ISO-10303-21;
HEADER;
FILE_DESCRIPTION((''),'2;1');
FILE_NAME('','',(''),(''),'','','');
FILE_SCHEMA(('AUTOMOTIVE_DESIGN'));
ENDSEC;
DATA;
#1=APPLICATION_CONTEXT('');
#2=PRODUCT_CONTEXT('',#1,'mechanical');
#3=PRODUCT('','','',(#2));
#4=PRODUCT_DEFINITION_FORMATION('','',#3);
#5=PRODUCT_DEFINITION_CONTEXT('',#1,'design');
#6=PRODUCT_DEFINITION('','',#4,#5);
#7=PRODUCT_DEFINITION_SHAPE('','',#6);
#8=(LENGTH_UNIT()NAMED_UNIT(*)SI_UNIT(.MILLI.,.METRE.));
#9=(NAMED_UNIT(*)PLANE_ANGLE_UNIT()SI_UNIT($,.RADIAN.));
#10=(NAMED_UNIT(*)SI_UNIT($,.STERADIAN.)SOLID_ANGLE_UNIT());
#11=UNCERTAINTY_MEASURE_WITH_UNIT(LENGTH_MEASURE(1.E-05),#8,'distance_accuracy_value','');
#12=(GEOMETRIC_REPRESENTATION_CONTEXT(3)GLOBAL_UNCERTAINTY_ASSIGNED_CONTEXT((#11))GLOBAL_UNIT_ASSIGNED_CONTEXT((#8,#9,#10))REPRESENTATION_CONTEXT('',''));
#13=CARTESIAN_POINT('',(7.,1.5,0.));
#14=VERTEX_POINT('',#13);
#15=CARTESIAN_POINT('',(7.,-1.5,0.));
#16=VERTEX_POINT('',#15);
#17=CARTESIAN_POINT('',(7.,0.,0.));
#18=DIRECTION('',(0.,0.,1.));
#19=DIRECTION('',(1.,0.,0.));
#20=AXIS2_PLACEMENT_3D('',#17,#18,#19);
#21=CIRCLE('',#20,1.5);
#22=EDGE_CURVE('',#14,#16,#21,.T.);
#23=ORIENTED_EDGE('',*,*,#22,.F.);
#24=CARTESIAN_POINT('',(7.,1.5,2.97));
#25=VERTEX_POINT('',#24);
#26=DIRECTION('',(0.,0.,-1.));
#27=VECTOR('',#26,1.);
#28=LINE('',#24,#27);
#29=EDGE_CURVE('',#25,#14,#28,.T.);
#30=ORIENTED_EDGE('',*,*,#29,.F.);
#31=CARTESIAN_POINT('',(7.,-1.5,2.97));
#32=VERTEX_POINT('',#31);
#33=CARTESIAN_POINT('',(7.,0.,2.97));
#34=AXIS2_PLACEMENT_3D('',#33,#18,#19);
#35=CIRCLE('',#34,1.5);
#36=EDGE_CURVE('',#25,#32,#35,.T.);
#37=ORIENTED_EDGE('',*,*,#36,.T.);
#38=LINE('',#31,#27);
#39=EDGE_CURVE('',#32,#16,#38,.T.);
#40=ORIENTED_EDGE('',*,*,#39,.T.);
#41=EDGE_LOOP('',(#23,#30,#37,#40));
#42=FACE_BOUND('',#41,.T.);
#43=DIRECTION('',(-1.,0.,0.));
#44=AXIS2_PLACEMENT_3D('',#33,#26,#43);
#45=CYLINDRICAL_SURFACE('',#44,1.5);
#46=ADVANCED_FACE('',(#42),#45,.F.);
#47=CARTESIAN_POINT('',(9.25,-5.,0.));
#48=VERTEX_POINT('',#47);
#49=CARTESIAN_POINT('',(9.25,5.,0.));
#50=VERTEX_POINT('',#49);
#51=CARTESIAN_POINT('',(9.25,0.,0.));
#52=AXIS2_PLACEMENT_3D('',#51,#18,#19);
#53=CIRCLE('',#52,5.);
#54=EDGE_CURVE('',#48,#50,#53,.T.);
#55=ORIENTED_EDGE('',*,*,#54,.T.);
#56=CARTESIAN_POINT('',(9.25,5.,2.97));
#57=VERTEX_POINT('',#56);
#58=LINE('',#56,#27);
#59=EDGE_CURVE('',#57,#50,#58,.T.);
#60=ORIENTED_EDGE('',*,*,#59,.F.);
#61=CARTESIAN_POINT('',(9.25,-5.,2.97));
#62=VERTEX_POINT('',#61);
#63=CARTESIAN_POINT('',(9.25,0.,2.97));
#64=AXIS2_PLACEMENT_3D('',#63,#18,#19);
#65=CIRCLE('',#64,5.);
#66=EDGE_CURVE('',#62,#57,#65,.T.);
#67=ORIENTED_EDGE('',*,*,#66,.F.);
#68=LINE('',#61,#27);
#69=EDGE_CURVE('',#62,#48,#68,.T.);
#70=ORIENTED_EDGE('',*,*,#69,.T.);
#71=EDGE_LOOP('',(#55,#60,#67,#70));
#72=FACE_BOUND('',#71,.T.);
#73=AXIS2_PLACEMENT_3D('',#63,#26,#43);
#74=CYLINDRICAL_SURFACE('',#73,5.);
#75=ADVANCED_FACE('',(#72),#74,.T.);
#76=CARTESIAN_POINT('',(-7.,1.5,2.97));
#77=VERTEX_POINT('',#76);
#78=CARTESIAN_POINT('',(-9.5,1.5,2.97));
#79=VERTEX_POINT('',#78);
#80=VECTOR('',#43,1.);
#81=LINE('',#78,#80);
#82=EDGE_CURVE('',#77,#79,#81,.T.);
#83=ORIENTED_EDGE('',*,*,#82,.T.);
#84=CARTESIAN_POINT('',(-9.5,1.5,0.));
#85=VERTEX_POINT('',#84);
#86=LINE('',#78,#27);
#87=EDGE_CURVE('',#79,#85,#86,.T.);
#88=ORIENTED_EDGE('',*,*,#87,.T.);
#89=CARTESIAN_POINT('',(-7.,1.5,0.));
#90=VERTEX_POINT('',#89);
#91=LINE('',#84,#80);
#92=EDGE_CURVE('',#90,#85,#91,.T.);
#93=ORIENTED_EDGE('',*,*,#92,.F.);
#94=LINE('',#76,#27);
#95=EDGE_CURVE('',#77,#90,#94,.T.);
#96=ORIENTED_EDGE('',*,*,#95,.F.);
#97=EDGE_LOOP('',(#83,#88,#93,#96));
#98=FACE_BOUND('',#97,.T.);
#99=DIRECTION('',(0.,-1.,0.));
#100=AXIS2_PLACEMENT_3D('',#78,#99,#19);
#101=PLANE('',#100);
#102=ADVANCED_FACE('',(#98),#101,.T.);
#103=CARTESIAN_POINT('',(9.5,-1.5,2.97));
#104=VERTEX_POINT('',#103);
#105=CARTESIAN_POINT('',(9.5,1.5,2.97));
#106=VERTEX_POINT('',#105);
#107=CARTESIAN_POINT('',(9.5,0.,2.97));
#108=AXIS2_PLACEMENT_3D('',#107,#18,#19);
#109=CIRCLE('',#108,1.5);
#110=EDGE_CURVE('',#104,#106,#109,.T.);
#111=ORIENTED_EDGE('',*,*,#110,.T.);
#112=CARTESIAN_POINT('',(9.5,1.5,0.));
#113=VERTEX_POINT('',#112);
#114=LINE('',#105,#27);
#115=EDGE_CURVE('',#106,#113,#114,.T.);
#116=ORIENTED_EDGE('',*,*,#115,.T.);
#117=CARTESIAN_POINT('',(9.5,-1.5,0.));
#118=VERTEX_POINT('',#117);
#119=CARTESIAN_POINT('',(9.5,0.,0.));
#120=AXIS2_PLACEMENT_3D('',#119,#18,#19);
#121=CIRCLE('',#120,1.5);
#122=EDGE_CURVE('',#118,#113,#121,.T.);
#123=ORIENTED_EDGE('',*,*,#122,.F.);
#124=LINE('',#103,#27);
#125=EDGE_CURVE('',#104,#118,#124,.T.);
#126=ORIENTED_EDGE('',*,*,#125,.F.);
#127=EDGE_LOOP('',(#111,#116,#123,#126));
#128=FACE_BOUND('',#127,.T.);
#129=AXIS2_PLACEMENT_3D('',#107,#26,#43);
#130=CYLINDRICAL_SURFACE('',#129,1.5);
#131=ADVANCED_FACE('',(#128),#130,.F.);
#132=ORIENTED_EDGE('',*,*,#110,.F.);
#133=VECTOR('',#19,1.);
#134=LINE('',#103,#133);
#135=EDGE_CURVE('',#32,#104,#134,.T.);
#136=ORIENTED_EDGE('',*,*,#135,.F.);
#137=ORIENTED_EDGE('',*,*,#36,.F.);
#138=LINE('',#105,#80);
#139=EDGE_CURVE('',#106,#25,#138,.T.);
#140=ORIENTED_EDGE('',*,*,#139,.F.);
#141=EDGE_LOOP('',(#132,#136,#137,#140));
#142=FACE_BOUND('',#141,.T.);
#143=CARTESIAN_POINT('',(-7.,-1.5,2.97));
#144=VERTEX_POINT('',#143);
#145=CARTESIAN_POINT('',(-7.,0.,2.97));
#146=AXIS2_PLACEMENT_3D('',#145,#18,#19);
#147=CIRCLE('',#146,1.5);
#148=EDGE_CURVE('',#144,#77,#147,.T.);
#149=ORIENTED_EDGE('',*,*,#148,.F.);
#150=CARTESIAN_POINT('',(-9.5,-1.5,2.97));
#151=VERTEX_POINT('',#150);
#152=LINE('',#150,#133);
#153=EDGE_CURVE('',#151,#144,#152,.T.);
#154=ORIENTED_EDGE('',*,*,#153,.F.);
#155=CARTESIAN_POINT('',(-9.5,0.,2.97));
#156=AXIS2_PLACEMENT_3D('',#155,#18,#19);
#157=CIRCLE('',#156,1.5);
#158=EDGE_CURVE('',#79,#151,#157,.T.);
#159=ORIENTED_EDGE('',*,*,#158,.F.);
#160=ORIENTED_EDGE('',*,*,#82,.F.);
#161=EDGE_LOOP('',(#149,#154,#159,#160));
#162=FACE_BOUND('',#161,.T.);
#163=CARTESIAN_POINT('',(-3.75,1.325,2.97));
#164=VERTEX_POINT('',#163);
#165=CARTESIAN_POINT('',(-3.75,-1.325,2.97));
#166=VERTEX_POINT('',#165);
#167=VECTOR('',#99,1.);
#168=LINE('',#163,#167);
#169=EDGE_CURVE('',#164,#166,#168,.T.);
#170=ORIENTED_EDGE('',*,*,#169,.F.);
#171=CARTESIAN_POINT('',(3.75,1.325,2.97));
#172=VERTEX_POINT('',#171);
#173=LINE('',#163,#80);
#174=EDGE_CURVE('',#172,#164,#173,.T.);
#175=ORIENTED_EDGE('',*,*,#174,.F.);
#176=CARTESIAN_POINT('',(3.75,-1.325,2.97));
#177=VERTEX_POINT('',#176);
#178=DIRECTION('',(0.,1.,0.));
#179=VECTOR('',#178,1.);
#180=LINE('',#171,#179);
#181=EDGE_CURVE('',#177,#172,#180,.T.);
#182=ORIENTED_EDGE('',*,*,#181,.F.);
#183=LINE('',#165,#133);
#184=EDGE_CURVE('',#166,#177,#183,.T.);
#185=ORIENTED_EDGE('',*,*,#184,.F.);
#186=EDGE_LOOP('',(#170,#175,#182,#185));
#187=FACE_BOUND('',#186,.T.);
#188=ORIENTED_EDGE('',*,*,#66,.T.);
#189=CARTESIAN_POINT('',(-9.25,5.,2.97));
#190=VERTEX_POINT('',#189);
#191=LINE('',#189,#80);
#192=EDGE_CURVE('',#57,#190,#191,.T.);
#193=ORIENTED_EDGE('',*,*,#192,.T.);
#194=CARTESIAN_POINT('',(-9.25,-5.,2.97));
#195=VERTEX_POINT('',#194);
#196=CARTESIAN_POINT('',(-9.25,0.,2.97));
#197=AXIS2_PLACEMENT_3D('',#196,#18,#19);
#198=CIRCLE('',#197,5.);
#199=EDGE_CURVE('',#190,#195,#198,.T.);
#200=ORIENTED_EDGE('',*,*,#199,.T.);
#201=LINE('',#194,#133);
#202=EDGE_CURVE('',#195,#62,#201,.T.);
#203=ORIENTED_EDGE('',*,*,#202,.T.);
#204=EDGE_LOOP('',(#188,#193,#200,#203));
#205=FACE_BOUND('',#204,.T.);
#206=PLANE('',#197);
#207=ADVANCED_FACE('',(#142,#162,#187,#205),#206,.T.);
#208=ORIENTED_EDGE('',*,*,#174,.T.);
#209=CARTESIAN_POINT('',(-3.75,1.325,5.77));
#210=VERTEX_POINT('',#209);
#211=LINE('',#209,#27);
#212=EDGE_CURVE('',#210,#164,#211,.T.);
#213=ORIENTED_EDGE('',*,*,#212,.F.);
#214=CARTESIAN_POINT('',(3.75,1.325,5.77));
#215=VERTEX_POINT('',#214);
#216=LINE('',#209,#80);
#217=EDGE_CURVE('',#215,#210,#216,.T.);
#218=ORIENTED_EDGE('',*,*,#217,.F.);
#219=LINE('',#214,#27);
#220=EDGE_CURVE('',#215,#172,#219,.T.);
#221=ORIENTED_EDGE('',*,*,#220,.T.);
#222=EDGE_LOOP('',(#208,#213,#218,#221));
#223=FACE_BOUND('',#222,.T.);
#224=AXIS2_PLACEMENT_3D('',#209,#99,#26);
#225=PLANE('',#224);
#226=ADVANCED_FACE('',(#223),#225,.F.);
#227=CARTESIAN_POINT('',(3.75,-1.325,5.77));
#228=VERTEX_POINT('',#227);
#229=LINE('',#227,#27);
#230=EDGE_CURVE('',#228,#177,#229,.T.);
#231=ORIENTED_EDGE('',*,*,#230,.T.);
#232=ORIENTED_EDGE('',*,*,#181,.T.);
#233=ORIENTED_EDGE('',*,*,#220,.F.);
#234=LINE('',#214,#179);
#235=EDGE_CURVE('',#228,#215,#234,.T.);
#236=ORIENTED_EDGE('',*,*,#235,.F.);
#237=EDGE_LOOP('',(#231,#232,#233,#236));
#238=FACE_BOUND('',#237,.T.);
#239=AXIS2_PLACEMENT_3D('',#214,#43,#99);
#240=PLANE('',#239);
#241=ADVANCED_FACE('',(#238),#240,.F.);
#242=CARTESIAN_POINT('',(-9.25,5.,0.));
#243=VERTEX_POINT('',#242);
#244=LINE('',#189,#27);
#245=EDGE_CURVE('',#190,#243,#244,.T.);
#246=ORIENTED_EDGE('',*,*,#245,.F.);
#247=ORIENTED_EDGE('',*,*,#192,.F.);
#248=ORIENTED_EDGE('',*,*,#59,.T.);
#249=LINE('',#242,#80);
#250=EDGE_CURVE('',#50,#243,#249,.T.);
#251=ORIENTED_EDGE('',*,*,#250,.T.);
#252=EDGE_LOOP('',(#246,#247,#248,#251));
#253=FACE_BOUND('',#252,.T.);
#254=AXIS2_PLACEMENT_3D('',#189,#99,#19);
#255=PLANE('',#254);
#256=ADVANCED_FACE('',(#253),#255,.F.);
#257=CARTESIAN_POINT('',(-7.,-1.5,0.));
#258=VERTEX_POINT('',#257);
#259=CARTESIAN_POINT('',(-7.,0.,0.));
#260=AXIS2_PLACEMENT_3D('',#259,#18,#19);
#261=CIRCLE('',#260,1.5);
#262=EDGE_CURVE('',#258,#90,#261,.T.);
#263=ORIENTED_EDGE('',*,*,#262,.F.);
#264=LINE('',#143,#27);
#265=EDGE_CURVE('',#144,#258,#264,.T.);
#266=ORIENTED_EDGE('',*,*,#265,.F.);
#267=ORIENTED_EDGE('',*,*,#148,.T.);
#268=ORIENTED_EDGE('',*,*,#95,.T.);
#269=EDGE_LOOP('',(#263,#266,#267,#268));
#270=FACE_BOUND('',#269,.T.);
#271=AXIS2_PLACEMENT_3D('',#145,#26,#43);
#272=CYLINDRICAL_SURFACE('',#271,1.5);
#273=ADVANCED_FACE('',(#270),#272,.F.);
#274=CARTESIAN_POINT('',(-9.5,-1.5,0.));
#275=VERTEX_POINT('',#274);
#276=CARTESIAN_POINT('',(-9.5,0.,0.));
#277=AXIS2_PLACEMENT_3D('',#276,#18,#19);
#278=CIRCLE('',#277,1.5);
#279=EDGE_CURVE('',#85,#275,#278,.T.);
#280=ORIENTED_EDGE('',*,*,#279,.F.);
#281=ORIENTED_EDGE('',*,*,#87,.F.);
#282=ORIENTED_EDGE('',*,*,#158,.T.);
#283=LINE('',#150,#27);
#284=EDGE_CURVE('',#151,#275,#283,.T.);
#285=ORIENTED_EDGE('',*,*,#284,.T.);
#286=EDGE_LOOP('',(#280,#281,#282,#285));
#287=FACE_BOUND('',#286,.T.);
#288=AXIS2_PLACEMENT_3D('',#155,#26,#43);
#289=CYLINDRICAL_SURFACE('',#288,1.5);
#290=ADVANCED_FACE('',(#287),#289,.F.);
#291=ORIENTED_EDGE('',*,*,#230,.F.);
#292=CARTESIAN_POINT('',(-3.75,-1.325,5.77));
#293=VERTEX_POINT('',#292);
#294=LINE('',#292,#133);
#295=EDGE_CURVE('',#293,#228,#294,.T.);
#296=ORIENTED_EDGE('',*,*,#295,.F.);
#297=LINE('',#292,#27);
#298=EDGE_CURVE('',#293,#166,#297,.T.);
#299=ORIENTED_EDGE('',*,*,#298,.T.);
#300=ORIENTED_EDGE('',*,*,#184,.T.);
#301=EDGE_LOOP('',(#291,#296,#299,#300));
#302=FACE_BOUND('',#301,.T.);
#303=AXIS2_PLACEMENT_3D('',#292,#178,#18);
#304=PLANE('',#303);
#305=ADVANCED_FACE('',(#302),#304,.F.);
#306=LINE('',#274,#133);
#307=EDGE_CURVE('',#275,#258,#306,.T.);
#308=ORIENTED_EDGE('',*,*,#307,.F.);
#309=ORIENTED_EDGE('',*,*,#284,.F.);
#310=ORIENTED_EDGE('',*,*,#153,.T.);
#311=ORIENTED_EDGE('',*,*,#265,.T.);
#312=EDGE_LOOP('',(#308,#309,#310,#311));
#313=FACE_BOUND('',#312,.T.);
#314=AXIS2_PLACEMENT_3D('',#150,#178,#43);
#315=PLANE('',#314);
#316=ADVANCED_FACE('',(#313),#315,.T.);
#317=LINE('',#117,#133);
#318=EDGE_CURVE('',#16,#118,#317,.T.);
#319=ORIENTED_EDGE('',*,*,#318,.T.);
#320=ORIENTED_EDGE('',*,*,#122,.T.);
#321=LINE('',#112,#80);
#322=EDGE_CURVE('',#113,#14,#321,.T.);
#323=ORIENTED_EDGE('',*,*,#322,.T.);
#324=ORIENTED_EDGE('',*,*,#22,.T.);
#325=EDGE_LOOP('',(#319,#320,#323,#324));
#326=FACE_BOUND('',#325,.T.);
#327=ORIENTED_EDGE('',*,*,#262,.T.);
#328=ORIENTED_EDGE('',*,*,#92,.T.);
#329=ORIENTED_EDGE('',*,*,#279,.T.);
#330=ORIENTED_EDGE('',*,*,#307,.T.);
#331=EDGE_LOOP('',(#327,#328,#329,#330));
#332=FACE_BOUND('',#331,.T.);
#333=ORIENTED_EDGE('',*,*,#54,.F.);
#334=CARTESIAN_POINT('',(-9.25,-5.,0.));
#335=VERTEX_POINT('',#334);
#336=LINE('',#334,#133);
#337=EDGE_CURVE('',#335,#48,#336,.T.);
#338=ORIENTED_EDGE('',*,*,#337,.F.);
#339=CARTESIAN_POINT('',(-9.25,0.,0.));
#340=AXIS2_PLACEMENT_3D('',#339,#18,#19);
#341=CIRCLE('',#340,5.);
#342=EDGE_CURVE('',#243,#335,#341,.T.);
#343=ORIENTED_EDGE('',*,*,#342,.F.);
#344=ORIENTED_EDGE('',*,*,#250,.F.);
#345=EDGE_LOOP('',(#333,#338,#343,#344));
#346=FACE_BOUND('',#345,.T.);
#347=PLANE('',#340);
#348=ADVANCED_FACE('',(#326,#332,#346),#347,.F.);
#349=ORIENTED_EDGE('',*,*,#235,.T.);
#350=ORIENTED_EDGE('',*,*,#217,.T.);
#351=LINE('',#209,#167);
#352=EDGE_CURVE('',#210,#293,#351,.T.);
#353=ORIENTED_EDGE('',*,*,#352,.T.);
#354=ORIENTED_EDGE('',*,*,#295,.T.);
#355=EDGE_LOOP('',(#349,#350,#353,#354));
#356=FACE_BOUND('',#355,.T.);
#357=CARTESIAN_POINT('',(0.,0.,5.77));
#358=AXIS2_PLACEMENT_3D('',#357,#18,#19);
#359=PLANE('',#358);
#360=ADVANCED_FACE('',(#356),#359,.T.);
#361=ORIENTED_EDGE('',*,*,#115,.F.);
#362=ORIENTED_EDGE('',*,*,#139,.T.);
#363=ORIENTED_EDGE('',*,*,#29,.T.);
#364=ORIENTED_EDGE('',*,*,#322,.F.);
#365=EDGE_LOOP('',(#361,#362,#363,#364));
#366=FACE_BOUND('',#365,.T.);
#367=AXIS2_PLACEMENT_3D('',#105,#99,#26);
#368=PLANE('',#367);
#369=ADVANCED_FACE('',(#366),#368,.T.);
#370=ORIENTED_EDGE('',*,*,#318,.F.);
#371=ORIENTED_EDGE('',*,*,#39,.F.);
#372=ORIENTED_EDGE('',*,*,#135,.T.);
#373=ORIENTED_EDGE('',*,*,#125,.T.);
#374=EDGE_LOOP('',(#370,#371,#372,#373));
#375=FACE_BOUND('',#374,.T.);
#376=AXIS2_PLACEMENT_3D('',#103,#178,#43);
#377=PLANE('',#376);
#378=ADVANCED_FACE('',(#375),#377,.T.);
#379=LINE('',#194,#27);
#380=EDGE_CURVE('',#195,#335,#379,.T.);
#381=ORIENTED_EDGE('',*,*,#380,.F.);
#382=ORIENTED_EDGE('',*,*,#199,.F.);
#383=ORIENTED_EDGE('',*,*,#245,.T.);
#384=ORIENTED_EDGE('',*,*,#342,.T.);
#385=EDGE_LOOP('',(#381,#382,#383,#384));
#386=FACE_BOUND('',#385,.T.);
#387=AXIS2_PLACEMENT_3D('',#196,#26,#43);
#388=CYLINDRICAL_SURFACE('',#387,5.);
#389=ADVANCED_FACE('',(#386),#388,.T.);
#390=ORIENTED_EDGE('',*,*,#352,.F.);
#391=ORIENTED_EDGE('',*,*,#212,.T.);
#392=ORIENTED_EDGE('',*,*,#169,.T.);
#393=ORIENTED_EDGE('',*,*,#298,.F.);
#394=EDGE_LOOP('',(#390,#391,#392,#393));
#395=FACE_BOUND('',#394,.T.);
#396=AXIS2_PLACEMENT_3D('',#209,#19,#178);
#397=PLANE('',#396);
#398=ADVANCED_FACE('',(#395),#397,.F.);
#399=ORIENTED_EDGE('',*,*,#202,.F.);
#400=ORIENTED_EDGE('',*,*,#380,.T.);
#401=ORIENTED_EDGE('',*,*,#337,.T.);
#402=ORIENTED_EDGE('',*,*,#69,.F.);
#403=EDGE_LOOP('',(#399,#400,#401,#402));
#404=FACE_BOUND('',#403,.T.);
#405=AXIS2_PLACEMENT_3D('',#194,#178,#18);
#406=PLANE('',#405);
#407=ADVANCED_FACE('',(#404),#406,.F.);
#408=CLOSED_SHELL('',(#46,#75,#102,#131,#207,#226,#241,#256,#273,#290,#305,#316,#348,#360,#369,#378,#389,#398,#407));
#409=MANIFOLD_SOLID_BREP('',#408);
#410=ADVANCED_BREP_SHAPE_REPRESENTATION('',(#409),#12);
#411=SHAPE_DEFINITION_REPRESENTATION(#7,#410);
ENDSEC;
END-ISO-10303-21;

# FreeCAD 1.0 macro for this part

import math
import FreeCAD as App
import Part
import Sketcher

V = App.Vector


def add_polygon(sketch, points):
    """Adds a closed chain of lines whose ends are joined by coincident constraints."""
    first, n = sketch.GeometryCount, len(points)
    for a, b in zip(points, points[1:] + points[:1]):
        sketch.addGeometry(Part.LineSegment(App.Vector(*a, 0), App.Vector(*b, 0)), False)
    for i in range(n):
        sketch.addConstraint(Sketcher.Constraint("Coincident", first + i, 2, first + (i + 1) % n, 1))

doc = App.newDocument("Part")
params = doc.addObject("Spreadsheet::Sheet", "Params")
for row, (alias, value) in enumerate([
    ("sketch1_radius", "5 mm"),
    ("sketch1_radius2", "1.5 mm"),
    ("sketch1_width", "18.5 mm"),
    ("sketch1_width2", "2.5 mm"),
    ("pad1_length", "2.97 mm"),
    ("sketch2_width", "7.5 mm"),
    ("sketch2_height", "2.65 mm"),
    ("pad2_length", "2.8 mm"),
], start=1):
    params.set(f"A{row}", alias)
    params.set(f"B{row}", "=" + value)
    params.setAlias(f"B{row}", alias)

body = doc.addObject("PartDesign::Body", "Body")

sketch1 = body.newObject("Sketcher::SketchObject", "Sketch")
sketch1.AttachmentSupport = (doc.getObject("XY_Plane"), [""])
sketch1.MapMode = "FlatFace"
sketch1.addGeometry([
    Part.LineSegment(V(9.25, 5, 0), V(-9.25, 5, 0)),
    Part.ArcOfCircle(Part.Circle(V(-9.25, 0, 0), V(0, 0, 1), 5), math.radians(90), math.radians(270)),
    Part.LineSegment(V(-9.25, -5, 0), V(9.25, -5, 0)),
    Part.ArcOfCircle(Part.Circle(V(9.25, 0, 0), V(0, 0, 1), 5), math.radians(-90), math.radians(90)),
    Part.LineSegment(V(9.5, -1.5, 0), V(7, -1.5, 0)),
    Part.ArcOfCircle(Part.Circle(V(7, 0, 0), V(0, 0, 1), 1.5), math.radians(90), math.radians(270)),
    Part.LineSegment(V(7, 1.5, 0), V(9.5, 1.5, 0)),
    Part.ArcOfCircle(Part.Circle(V(9.5, 0, 0), V(0, 0, 1), 1.5), math.radians(-90), math.radians(90)),
    Part.LineSegment(V(-9.5, 1.5, 0), V(-7, 1.5, 0)),
    Part.ArcOfCircle(Part.Circle(V(-7, 0, 0), V(0, 0, 1), 1.5), math.radians(-90), math.radians(90)),
    Part.LineSegment(V(-7, -1.5, 0), V(-9.5, -1.5, 0)),
    Part.ArcOfCircle(Part.Circle(V(-9.5, 0, 0), V(0, 0, 1), 1.5), math.radians(90), math.radians(270)),
], False)
sketch1.addConstraint([
    Sketcher.Constraint("Tangent", 0, 2, 1, 1),
    Sketcher.Constraint("Tangent", 1, 2, 2, 1),
    Sketcher.Constraint("Tangent", 2, 2, 3, 1),
    Sketcher.Constraint("Tangent", 3, 2, 0, 1),
    Sketcher.Constraint("Tangent", 4, 2, 5, 2),
    Sketcher.Constraint("Tangent", 5, 1, 6, 1),
    Sketcher.Constraint("Tangent", 6, 2, 7, 2),
    Sketcher.Constraint("Tangent", 7, 1, 4, 1),
    Sketcher.Constraint("Tangent", 8, 2, 9, 2),
    Sketcher.Constraint("Tangent", 9, 1, 10, 1),
    Sketcher.Constraint("Tangent", 10, 2, 11, 2),
    Sketcher.Constraint("Tangent", 11, 1, 8, 1),
    Sketcher.Constraint("Horizontal", 0),
    Sketcher.Constraint("Horizontal", 2),
    Sketcher.Constraint("Horizontal", 4),
    Sketcher.Constraint("Horizontal", 6),
    Sketcher.Constraint("Horizontal", 8),
    Sketcher.Constraint("Horizontal", 10),
    Sketcher.Constraint("Equal", 7, 9),
    Sketcher.Constraint("Symmetric", 1, 3, 3, 3, -1, 1),
    Sketcher.Constraint("Symmetric", 5, 3, 9, 3, -1, 1),
    Sketcher.Constraint("Symmetric", 7, 3, 11, 3, -2),
    Sketcher.Constraint("Radius", 1, 5.0),
    Sketcher.Constraint("Radius", 5, 1.5),
    Sketcher.Constraint("DistanceX", 0, 2, 0, 1, 18.5),
    Sketcher.Constraint("DistanceX", 4, 2, 4, 1, 2.5),
    Sketcher.Constraint("DistanceX", -1, 1, 5, 3, 7.0),
])
sketch1.setExpression("Constraints[22]", "Params.sketch1_radius")
sketch1.setExpression("Constraints[23]", "Params.sketch1_radius2")
sketch1.setExpression("Constraints[24]", "Params.sketch1_width")
sketch1.setExpression("Constraints[25]", "Params.sketch1_width2")
pad1 = body.newObject("PartDesign::Pad", "Pad")
pad1.Profile = sketch1
pad1.setExpression("Length", "Params.pad1_length")

sketch2 = body.newObject("Sketcher::SketchObject", "Sketch001")
sketch2.AttachmentSupport = (doc.getObject("XY_Plane"), [""])
sketch2.MapMode = "FlatFace"
sketch2.AttachmentOffset = App.Placement(V(0, 0, 2.97), App.Rotation())
add_polygon(sketch2, [(-3.75, 1.325), (-3.75, -1.325), (3.75, -1.325), (3.75, 1.325)])
sketch2.addConstraint([
    Sketcher.Constraint("Vertical", 0),
    Sketcher.Constraint("Horizontal", 1),
    Sketcher.Constraint("Vertical", 2),
    Sketcher.Constraint("Horizontal", 3),
    Sketcher.Constraint("Symmetric", 0, 2, 2, 2, -1, 1),
    Sketcher.Constraint("DistanceX", 1, 1, 1, 2, 7.5),
    Sketcher.Constraint("DistanceY", 0, 2, 0, 1, 2.65),
])
sketch2.setExpression("Constraints[9]", "Params.sketch2_width")
sketch2.setExpression("Constraints[10]", "Params.sketch2_height")
pad2 = body.newObject("PartDesign::Pad", "Pad001")
pad2.Profile = sketch2
pad2.setExpression("Length", "Params.pad2_length")

doc.recompute()
